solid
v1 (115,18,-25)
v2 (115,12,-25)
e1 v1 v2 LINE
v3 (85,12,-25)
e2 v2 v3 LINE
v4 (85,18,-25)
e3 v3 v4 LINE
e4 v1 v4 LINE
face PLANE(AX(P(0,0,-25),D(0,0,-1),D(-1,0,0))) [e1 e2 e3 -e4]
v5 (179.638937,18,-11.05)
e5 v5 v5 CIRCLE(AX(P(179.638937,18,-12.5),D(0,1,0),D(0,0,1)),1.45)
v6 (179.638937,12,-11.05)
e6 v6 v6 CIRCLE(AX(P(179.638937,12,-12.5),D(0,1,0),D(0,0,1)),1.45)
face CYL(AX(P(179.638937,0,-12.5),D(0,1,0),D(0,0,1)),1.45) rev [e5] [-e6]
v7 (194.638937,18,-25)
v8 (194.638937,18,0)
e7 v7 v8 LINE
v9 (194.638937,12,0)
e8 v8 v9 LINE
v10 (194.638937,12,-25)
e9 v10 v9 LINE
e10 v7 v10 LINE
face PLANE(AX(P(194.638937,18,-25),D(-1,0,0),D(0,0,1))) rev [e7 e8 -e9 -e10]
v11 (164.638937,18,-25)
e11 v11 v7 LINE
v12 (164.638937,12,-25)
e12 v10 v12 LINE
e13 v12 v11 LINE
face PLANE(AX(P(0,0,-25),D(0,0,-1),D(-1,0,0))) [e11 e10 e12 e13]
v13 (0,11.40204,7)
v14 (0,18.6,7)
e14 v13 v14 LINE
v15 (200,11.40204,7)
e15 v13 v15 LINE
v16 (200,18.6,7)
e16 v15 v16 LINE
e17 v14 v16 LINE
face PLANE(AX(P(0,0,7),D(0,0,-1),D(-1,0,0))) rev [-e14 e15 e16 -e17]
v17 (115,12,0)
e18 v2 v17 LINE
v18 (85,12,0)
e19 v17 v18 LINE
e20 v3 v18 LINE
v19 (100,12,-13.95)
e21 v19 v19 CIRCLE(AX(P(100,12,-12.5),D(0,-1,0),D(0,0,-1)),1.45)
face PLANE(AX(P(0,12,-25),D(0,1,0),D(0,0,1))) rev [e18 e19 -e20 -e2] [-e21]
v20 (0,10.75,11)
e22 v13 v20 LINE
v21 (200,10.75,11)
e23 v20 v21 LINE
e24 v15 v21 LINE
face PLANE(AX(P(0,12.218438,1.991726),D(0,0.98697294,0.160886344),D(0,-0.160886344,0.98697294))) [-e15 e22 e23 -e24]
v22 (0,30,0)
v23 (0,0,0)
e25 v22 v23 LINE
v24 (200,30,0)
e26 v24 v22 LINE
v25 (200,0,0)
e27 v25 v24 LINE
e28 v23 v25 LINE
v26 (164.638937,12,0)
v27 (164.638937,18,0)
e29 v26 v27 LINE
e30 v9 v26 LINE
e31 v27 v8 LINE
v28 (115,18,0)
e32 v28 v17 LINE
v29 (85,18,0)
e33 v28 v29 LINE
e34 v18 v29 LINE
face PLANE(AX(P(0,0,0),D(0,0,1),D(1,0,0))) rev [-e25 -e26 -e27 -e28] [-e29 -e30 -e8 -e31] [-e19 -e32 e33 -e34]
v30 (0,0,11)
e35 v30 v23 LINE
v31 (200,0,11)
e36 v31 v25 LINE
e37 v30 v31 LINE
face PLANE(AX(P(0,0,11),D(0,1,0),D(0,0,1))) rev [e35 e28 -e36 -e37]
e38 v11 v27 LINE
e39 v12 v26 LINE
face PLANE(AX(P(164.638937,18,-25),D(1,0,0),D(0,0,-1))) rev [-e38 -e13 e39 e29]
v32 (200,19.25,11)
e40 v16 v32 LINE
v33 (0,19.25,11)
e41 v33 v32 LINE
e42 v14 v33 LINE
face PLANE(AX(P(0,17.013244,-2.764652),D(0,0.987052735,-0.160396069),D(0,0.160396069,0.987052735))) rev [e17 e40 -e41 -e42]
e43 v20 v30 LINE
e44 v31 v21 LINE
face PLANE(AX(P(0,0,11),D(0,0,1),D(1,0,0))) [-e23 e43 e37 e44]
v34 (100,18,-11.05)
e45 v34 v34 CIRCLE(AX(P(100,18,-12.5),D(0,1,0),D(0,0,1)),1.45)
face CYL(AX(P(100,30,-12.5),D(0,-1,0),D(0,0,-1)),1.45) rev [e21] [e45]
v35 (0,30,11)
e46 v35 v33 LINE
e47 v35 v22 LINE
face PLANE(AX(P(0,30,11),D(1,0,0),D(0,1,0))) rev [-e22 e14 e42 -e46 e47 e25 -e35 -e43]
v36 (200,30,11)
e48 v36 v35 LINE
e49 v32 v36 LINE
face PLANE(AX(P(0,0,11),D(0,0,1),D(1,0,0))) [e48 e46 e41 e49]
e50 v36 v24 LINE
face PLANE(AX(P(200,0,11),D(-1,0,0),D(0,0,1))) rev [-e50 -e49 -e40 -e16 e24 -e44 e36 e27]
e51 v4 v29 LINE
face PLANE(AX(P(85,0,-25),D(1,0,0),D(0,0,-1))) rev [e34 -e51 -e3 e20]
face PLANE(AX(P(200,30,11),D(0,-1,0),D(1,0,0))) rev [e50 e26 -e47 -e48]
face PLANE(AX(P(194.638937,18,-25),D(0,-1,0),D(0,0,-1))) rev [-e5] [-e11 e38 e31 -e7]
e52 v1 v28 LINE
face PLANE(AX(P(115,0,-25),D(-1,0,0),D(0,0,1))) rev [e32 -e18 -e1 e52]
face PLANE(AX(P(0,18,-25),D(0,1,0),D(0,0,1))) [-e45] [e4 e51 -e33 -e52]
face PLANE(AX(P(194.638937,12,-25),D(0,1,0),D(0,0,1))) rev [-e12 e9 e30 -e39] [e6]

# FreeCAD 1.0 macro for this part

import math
import FreeCAD as App
import Part
import Sketcher
from FreeCAD import Vector
Q = App.Units.Quantity


def add_polygon(sketch, points):
    """Adds a closed chain of lines whose ends are joined by coincident constraints."""
    first, n = sketch.GeometryCount, len(points)
    for a, b in zip(points, points[1:] + points[:1]):
        sketch.addGeometry(Part.LineSegment(App.Vector(*a, 0), App.Vector(*b, 0)), False)
    for i in range(n):
        sketch.addConstraint(Sketcher.Constraint("Coincident", first + i, 2, first + (i + 1) % n, 1))

doc = App.newDocument("Part")
body = doc.addObject("PartDesign::Body", "Body")

sketch1 = body.newObject("Sketcher::SketchObject", "Sketch")
sketch1.AttachmentSupport = (doc.getObject("XY_Plane"), [""])
sketch1.MapMode = "FlatFace"
add_polygon(sketch1, [(0, 30), (0, 0), (200, 0), (200, 30)])
sketch1.addConstraint(Sketcher.Constraint("Vertical", 0))
sketch1.addConstraint(Sketcher.Constraint("Horizontal", 1))
sketch1.addConstraint(Sketcher.Constraint("Vertical", 2))
sketch1.addConstraint(Sketcher.Constraint("Horizontal", 3))
sketch1.addConstraint(Sketcher.Constraint("Coincident", 0, 2, -1, 1))
sketch1.addConstraint(Sketcher.Constraint("DistanceX", 1, 1, 1, 2, Q("200 mm")))
sketch1.addConstraint(Sketcher.Constraint("DistanceY", 0, 2, 0, 1, Q("30 mm")))
pad1 = body.newObject("PartDesign::Pad", "Pad")
pad1.Profile = sketch1
pad1.Length = 11

sketch2 = body.newObject("Sketcher::SketchObject", "Sketch001")
sketch2.AttachmentSupport = (doc.getObject("XY_Plane"), [""])
sketch2.MapMode = "FlatFace"
add_polygon(sketch2, [(115, 12), (85, 12), (85, 18), (115, 18)])
sketch2.addConstraint(Sketcher.Constraint("Horizontal", 0))
sketch2.addConstraint(Sketcher.Constraint("Vertical", 1))
sketch2.addConstraint(Sketcher.Constraint("Horizontal", 2))
sketch2.addConstraint(Sketcher.Constraint("Vertical", 3))
sketch2.addConstraint(Sketcher.Constraint("DistanceX", 0, 2, 0, 1, Q("30 mm")))
sketch2.addConstraint(Sketcher.Constraint("DistanceY", 1, 1, 1, 2, Q("6 mm")))
sketch2.addConstraint(Sketcher.Constraint("DistanceX", -1, 1, 0, 2, Q("85 mm")))
sketch2.addConstraint(Sketcher.Constraint("DistanceY", -1, 1, 0, 2, Q("12 mm")))
pad2 = body.newObject("PartDesign::Pad", "Pad001")
pad2.Profile = sketch2
pad2.Length = 25
pad2.Reversed = True

sketch3 = body.newObject("Sketcher::SketchObject", "Sketch002")
sketch3.AttachmentSupport = (doc.getObject("YZ_Plane"), [""])
sketch3.MapMode = "FlatFace"
sketch3.AttachmentOffset = App.Placement(Vector(0, 0, 200), App.Rotation())
add_polygon(sketch3, [(18.6, 7), (19.25, 11), (10.75, 11), (11.40204, 7)])
sketch3.addConstraint(Sketcher.Constraint("Horizontal", 1))
sketch3.addConstraint(Sketcher.Constraint("Horizontal", 3))
sketch3.addConstraint(Sketcher.Constraint("DistanceX", 1, 2, 1, 1, Q("8.5 mm")))
sketch3.addConstraint(Sketcher.Constraint("DistanceY", -1, 1, 0, 2, Q("11 mm")))
sketch3.addConstraint(Sketcher.Constraint("DistanceY", -1, 1, 2, 2, Q("7 mm")))
sketch3.addConstraint(Sketcher.Constraint("DistanceX", -1, 1, 3, 2, Q("18.6 mm")))
sketch3.addConstraint(Sketcher.Constraint("DistanceX", -1, 1, 0, 2, Q("19.25 mm")))
sketch3.addConstraint(Sketcher.Constraint("DistanceX", 3, 1, 3, 2, Q("7.19796 mm")))
pocket1 = body.newObject("PartDesign::Pocket", "Pocket")
pocket1.Profile = sketch3
pocket1.Type = "ThroughAll"

sketch4 = body.newObject("Sketcher::SketchObject", "Sketch003")
sketch4.AttachmentSupport = (doc.getObject("XZ_Plane"), [""])
sketch4.MapMode = "FlatFace"
sketch4.AttachmentOffset = App.Placement(Vector(0, 0, -12), App.Rotation())
sketch4.addGeometry(Part.ArcOfCircle(Part.Circle(Vector(100, -12.5, 0), Vector(0, 0, 1), 1.45), math.radians(90), math.radians(180)), False)
sketch4.addGeometry(Part.ArcOfCircle(Part.Circle(Vector(100, -12.5, 0), Vector(0, 0, 1), 1.45), math.radians(180), math.radians(270)), False)
sketch4.addGeometry(Part.ArcOfCircle(Part.Circle(Vector(100, -12.5, 0), Vector(0, 0, 1), 1.45), math.radians(-90), math.radians(0)), False)
sketch4.addGeometry(Part.ArcOfCircle(Part.Circle(Vector(100, -12.5, 0), Vector(0, 0, 1), 1.45), math.radians(0), math.radians(90)), False)
sketch4.addConstraint(Sketcher.Constraint("Tangent", 0, 2, 1, 1))
sketch4.addConstraint(Sketcher.Constraint("Tangent", 1, 2, 2, 1))
sketch4.addConstraint(Sketcher.Constraint("Tangent", 2, 2, 3, 1))
sketch4.addConstraint(Sketcher.Constraint("Tangent", 3, 2, 0, 1))
sketch4.addConstraint(Sketcher.Constraint("Equal", 0, 1))
sketch4.addConstraint(Sketcher.Constraint("Horizontal", 3, 3, 0, 2))
sketch4.addConstraint(Sketcher.Constraint("Horizontal", 0, 2, 2, 2))
sketch4.addConstraint(Sketcher.Constraint("Vertical", 3, 3, 1, 2))
sketch4.addConstraint(Sketcher.Constraint("Vertical", 1, 2, 3, 2))
sketch4.addConstraint(Sketcher.Constraint("Radius", 0, Q("1.45 mm")))
sketch4.addConstraint(Sketcher.Constraint("DistanceX", -1, 1, 0, 3, Q("100 mm")))
sketch4.addConstraint(Sketcher.Constraint("DistanceY", 0, 3, -1, 1, Q("12.5 mm")))
pocket2 = body.newObject("PartDesign::Pocket", "Pocket001")
pocket2.Profile = sketch4
pocket2.Type = "ThroughAll"

sketch5 = body.newObject("Sketcher::SketchObject", "Sketch004")
sketch5.AttachmentSupport = (doc.getObject("XY_Plane"), [""])
sketch5.MapMode = "FlatFace"
add_polygon(sketch5, [(194.638937, 18), (194.638937, 12), (164.638937, 12), (164.638937, 18)])
sketch5.addConstraint(Sketcher.Constraint("Vertical", 0))
sketch5.addConstraint(Sketcher.Constraint("Horizontal", 1))
sketch5.addConstraint(Sketcher.Constraint("Vertical", 2))
sketch5.addConstraint(Sketcher.Constraint("Horizontal", 3))
sketch5.addConstraint(Sketcher.Constraint("DistanceX", 1, 2, 1, 1, Q("30 mm")))
sketch5.addConstraint(Sketcher.Constraint("DistanceY", 0, 2, 0, 1, Q("6 mm")))
sketch5.addConstraint(Sketcher.Constraint("DistanceY", -1, 1, 0, 2, Q("12 mm")))
sketch5.addConstraint(Sketcher.Constraint("DistanceX", -1, 1, 0, 2, Q("194.638937 mm")))
pad3 = body.newObject("PartDesign::Pad", "Pad002")
pad3.Profile = sketch5
pad3.Length = 25
pad3.Reversed = True

sketch6 = body.newObject("Sketcher::SketchObject", "Sketch005")
sketch6.AttachmentSupport = (doc.getObject("XZ_Plane"), [""])
sketch6.MapMode = "FlatFace"
sketch6.AttachmentOffset = App.Placement(Vector(0, 0, -18), App.Rotation())
sketch6.addGeometry(Part.Circle(Vector(179.638937, -12.5, 0), Vector(0, 0, 1), 1.45), False)
sketch6.addConstraint(Sketcher.Constraint("Diameter", 0, Q("2.9 mm")))
sketch6.addConstraint(Sketcher.Constraint("DistanceY", 0, 3, -1, 1, Q("12.5 mm")))
sketch6.addConstraint(Sketcher.Constraint("DistanceX", -1, 1, 0, 3, Q("179.638937 mm")))
pocket3 = body.newObject("PartDesign::Pocket", "Pocket002")
pocket3.Profile = sketch6
pocket3.Type = "ThroughAll"
pocket3.Reversed = True

doc.recompute()
